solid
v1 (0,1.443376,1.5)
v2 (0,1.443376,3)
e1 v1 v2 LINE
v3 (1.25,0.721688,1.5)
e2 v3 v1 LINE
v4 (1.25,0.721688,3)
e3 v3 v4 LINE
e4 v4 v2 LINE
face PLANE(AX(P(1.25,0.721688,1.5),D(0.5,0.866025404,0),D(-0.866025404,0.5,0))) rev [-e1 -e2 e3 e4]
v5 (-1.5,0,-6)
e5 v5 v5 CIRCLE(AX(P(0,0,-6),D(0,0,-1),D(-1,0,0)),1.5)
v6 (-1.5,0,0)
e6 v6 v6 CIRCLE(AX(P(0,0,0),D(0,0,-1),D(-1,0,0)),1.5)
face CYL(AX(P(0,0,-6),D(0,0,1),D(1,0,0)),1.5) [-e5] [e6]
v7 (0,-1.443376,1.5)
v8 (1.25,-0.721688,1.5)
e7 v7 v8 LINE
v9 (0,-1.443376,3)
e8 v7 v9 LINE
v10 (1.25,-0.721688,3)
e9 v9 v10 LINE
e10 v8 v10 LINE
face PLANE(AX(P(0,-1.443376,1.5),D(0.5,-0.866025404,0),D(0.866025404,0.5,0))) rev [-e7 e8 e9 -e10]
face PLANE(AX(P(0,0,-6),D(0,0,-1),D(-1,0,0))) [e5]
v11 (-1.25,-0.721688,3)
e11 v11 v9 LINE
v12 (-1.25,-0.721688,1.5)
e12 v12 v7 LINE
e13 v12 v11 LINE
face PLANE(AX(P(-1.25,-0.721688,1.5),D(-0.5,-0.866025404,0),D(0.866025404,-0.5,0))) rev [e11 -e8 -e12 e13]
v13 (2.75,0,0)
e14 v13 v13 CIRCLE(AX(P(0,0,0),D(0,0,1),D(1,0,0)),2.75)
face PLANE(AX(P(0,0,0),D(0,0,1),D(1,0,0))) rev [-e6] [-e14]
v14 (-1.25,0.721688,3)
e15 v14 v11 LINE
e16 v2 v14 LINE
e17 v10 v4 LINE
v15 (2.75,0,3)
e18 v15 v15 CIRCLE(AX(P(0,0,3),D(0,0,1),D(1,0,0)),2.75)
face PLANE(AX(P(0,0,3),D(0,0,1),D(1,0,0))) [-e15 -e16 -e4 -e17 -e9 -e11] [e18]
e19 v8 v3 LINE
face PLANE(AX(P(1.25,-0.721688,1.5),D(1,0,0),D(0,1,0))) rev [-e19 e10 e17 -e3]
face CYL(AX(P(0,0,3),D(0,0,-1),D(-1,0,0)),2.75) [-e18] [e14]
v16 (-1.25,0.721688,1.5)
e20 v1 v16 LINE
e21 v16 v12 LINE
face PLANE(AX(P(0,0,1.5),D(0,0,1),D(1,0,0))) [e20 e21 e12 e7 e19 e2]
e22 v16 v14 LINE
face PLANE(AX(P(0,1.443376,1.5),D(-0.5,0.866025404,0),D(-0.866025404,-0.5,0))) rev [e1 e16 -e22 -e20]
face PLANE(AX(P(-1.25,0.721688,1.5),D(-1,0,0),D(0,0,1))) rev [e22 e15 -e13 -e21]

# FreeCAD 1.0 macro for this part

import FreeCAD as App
import Part
import Sketcher
from FreeCAD import Vector
Q = App.Units.Quantity

doc = App.newDocument("Part")
body = doc.addObject("PartDesign::Body", "Body")

# Sketch on XY plane
sketch1 = body.newObject("Sketcher::SketchObject", "Sketch")
sketch1.AttachmentSupport = (doc.getObject("XY_Plane"), [""])
sketch1.MapMode = "FlatFace"
sketch1.addGeometry(Part.Circle(Vector(0, 0, 0), Vector(0, 0, 1), 2.75), False)
sketch1.addConstraint([
    Sketcher.Constraint("Coincident", 0, 3, -1, 1),
    Sketcher.Constraint("Diameter", 0, 5.5),
])
pad1 = body.newObject("PartDesign::Pad", "Pad")
pad1.Profile = sketch1
pad1.Length = 3

# Sketch on XY plane
sketch2 = body.newObject("Sketcher::SketchObject", "Sketch001")
sketch2.AttachmentSupport = (doc.getObject("XY_Plane"), [""])
sketch2.MapMode = "FlatFace"
sketch2.AttachmentOffset = App.Placement(Vector(0, 0, 3), App.Rotation())
sketch2.addGeometry([
    Part.LineSegment(Vector(0, -1.443376, 0), Vector(1.25, -0.721688, 0)),  # 0
    Part.LineSegment(Vector(1.25, -0.721688, 0), Vector(1.25, 0.721688, 0)),  # 1
    Part.LineSegment(Vector(1.25, 0.721688, 0), Vector(0, 1.443376, 0)),  # 2
    Part.LineSegment(Vector(0, 1.443376, 0), Vector(-1.25, 0.721688, 0)),  # 3
    Part.LineSegment(Vector(-1.25, 0.721688, 0), Vector(-1.25, -0.721688, 0)),  # 4
    Part.LineSegment(Vector(-1.25, -0.721688, 0), Vector(0, -1.443376, 0)),  # 5
], False)
sketch2.addConstraint([
    Sketcher.Constraint("Coincident", 0, 2, 1, 1),
    Sketcher.Constraint("Coincident", 1, 2, 2, 1),
    Sketcher.Constraint("Coincident", 2, 2, 3, 1),
    Sketcher.Constraint("Coincident", 3, 2, 4, 1),
    Sketcher.Constraint("Coincident", 4, 2, 5, 1),
    Sketcher.Constraint("Coincident", 5, 2, 0, 1),
    Sketcher.Constraint("Vertical", 1),
    Sketcher.Constraint("Vertical", 4),
    Sketcher.Constraint("Symmetric", 0, 2, 3, 2, -1, 1),
    Sketcher.Constraint("Symmetric", 2, 2, 5, 2, -1, 1),
    Sketcher.Constraint("PointOnObject", 2, 2, -2),
    Sketcher.Constraint("Parallel", 2, 5),
    Sketcher.Constraint("Horizontal", 1, 2, 3, 2),
    Sketcher.Constraint("Angle", 0, Q("30 deg")),
    Sketcher.Constraint("DistanceX", 3, 2, 1, 2, 2.5),
    Sketcher.Constraint("DistanceY", 1, 1, 1, 2, 1.443376),
])
pocket1 = body.newObject("PartDesign::Pocket", "Pocket")
pocket1.Profile = sketch2
pocket1.Length = 1.5

# Sketch on XY plane
sketch3 = body.newObject("Sketcher::SketchObject", "Sketch002")
sketch3.AttachmentSupport = (doc.getObject("XY_Plane"), [""])
sketch3.MapMode = "FlatFace"
sketch3.addGeometry(Part.Circle(Vector(0, 0, 0), Vector(0, 0, 1), 1.5), False)
sketch3.addConstraint([
    Sketcher.Constraint("Coincident", 0, 3, -1, 1),
    Sketcher.Constraint("Diameter", 0, 3.0),
])
pad2 = body.newObject("PartDesign::Pad", "Pad001")
pad2.Profile = sketch3
pad2.Length = 6
pad2.Reversed = True

doc.recompute()
